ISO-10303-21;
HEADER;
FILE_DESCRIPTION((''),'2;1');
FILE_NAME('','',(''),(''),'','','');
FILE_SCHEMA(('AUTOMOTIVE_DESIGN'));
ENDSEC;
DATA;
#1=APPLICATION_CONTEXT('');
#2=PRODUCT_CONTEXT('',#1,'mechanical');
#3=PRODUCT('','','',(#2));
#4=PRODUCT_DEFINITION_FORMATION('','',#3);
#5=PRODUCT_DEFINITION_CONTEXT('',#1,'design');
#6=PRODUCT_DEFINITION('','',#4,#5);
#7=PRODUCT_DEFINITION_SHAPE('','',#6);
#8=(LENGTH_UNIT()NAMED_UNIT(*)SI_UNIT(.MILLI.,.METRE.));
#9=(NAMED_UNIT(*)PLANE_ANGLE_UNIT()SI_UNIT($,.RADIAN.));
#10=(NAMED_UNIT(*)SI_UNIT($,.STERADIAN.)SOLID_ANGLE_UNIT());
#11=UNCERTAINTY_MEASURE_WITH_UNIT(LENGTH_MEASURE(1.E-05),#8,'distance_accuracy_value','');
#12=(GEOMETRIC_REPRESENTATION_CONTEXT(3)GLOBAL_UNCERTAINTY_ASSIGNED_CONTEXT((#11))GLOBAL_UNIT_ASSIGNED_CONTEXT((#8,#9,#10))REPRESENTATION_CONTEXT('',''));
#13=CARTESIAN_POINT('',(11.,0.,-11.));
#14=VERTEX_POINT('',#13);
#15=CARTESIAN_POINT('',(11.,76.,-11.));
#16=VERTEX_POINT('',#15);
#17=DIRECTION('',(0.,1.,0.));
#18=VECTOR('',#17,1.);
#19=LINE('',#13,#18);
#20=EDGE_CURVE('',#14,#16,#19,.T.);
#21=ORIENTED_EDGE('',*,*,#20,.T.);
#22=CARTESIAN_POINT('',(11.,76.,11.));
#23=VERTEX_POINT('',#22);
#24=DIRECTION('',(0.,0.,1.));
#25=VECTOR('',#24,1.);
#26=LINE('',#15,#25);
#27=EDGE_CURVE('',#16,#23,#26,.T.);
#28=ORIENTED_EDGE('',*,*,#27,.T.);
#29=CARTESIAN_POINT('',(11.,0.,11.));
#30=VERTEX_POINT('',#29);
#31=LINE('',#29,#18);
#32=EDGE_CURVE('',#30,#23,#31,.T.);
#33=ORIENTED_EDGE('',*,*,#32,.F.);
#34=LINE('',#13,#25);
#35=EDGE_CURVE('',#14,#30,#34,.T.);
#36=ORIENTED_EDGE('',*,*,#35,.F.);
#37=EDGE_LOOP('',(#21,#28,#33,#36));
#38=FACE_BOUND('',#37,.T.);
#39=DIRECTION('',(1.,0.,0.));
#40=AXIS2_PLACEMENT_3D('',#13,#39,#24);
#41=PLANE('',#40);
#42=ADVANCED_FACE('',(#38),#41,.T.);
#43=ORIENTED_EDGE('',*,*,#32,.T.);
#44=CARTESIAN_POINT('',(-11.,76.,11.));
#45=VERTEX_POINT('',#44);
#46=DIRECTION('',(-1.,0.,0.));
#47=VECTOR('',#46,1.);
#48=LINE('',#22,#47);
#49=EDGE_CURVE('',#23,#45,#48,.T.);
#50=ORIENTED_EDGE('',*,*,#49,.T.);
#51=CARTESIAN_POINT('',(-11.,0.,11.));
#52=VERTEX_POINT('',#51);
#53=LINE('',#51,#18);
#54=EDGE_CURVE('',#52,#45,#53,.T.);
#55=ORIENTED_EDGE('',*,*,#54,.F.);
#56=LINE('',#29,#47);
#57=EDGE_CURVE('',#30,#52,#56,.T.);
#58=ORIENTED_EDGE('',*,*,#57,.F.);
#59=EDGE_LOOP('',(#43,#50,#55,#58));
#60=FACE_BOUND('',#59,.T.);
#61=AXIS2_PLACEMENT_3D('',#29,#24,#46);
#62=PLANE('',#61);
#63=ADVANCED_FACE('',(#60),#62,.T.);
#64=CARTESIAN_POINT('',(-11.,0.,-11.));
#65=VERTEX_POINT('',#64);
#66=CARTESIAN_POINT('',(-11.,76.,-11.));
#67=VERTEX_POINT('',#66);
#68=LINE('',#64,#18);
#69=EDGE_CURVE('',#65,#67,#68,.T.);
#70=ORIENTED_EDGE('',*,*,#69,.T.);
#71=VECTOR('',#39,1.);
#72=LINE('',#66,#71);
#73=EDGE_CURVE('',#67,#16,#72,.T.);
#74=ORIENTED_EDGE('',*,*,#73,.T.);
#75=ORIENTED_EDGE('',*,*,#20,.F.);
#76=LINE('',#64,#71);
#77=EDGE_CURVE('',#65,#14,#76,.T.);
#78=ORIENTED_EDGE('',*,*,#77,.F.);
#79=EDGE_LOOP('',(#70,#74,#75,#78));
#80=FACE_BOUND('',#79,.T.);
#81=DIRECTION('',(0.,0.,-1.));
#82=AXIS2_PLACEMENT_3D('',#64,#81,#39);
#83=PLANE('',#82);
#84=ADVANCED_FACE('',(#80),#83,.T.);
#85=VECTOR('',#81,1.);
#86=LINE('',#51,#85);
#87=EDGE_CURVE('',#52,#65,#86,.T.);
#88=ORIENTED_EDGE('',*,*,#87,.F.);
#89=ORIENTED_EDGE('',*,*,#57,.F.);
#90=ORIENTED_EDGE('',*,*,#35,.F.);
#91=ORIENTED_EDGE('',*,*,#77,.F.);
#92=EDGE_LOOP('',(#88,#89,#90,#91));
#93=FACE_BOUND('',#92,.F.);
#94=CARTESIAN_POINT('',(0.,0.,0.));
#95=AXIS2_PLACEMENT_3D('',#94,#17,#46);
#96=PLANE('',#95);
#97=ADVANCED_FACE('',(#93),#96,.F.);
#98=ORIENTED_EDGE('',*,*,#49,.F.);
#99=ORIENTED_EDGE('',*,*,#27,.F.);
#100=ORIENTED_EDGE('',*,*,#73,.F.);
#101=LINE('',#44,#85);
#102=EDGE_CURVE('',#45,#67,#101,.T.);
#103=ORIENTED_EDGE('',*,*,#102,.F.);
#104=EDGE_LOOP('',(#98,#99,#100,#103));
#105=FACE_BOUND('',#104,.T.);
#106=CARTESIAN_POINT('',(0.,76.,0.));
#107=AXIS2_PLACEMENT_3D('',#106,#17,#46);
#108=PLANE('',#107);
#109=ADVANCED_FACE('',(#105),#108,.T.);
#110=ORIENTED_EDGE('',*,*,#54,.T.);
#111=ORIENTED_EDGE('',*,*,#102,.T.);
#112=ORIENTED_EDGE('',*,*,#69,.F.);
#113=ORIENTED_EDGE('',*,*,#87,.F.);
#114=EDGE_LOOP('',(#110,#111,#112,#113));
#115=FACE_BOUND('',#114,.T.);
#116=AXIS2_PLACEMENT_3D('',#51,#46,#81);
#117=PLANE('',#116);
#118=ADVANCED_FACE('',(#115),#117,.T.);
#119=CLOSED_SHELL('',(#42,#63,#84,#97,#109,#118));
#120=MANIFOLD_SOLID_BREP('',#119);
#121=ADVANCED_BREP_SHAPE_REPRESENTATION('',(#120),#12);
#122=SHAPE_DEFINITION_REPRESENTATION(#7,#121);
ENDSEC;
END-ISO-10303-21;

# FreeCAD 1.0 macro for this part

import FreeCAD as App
import Part
import Sketcher
from FreeCAD import Vector

doc = App.newDocument("Part")
body = doc.addObject("PartDesign::Body", "Body")

sketch1 = body.newObject("Sketcher::SketchObject", "Sketch")
sketch1.AttachmentSupport = (doc.getObject("XZ_Plane"), [""])
sketch1.MapMode = "FlatFace"
sketch1.addGeometry([
    Part.LineSegment(Vector(-11, 11, 0), Vector(11, 11, 0)),
    Part.LineSegment(Vector(11, 11, 0), Vector(11, -11, 0)),
    Part.LineSegment(Vector(11, -11, 0), Vector(-11, -11, 0)),
    Part.LineSegment(Vector(-11, -11, 0), Vector(-11, 11, 0)),
], False)
sketch1.addConstraint([
    Sketcher.Constraint("Coincident", 0, 2, 1, 1),
    Sketcher.Constraint("Coincident", 1, 2, 2, 1),
    Sketcher.Constraint("Coincident", 2, 2, 3, 1),
    Sketcher.Constraint("Coincident", 3, 2, 0, 1),
    Sketcher.Constraint("Horizontal", 0),
    Sketcher.Constraint("Vertical", 1),
    Sketcher.Constraint("Horizontal", 2),
    Sketcher.Constraint("Vertical", 3),
    Sketcher.Constraint("Symmetric", 0, 2, 2, 2, -1, 1),
    Sketcher.Constraint("Equal", 2, 1),
    Sketcher.Constraint("DistanceX", 0, 1, 0, 2, 22.0),
])
pad1 = body.newObject("PartDesign::Pad", "Pad")
pad1.Profile = sketch1
pad1.Length = 76
pad1.Reversed = True

doc.recompute()
